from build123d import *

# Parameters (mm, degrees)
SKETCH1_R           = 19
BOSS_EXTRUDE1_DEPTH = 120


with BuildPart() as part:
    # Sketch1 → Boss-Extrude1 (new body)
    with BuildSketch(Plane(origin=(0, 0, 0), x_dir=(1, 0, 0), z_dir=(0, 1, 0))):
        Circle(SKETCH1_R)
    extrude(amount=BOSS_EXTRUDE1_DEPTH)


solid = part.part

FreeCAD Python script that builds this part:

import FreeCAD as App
import Part
import Sketcher
from FreeCAD import Vector

doc = App.newDocument("Part")
body = doc.addObject("PartDesign::Body", "Body")

sketch1 = body.newObject("Sketcher::SketchObject", "Sketch")
sketch1.AttachmentSupport = (doc.getObject("XZ_Plane"), [""])
sketch1.MapMode = "FlatFace"
sketch1.addGeometry(Part.Circle(Vector(0, 0, 0), Vector(0, 0, 1), 19), False)
sketch1.addConstraint([
    Sketcher.Constraint("Coincident", 0, 3, -1, 1),
    Sketcher.Constraint("Diameter", 0, 38.0),
])
pad1 = body.newObject("PartDesign::Pad", "Pad")
pad1.Profile = sketch1
pad1.Length = 120
pad1.Reversed = True

doc.recompute()
